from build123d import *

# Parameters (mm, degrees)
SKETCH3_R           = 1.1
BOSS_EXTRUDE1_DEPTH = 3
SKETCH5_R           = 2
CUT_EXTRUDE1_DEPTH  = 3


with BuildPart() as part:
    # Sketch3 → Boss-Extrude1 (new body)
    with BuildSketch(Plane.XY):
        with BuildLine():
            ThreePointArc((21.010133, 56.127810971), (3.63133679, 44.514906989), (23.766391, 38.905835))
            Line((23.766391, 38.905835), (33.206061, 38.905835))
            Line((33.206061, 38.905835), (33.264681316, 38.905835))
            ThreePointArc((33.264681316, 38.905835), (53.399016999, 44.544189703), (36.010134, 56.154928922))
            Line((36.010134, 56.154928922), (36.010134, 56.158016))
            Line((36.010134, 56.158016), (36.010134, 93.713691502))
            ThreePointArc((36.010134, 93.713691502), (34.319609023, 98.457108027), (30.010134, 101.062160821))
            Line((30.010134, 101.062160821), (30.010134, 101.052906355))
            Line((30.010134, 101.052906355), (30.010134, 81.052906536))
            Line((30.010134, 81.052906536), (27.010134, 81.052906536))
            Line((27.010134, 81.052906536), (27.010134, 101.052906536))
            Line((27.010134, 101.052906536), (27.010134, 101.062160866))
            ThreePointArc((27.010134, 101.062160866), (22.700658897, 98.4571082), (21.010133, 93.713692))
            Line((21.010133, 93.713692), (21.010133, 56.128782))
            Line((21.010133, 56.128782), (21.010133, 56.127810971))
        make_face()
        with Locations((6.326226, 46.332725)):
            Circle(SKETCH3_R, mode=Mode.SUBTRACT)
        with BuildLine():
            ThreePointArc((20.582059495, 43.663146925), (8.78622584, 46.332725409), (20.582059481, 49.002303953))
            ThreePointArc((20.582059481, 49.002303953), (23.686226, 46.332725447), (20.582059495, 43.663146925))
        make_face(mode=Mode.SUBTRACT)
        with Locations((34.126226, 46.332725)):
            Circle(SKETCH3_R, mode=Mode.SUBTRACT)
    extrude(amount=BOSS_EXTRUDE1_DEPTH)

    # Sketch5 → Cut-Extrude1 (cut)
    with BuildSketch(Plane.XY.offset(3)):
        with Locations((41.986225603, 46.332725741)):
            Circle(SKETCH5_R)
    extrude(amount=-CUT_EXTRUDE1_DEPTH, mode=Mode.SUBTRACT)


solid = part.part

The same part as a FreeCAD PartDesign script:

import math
import FreeCAD as App
import Part
import Sketcher
Q = App.Units.Quantity

doc = App.newDocument("Part")
body = doc.addObject("PartDesign::Body", "Body")

sketch1 = body.newObject("Sketcher::SketchObject", "Sketch")
sketch1.AttachmentSupport = (doc.getObject("XY_Plane"), [""])
sketch1.MapMode = "FlatFace"
sketch1.addGeometry([
    Part.ArcOfCircle(Part.Circle(App.Vector(15, 46.3, 0), App.Vector(0, 0, 1), 11.5), math.radians(58), math.radians(320)),
    Part.LineSegment(App.Vector(23.8, 38.9, 0), App.Vector(33.3, 38.9, 0)),
    Part.ArcOfCircle(Part.Circle(App.Vector(42, 46.4, 0), App.Vector(0, 0, 1), 11.5), math.radians(-140), math.radians(122)),
    Part.LineSegment(App.Vector(36, 56.2, 0), App.Vector(36, 93.7, 0)),
    Part.ArcOfCircle(Part.Circle(App.Vector(28.5, 93.7, 0), App.Vector(0, 0, 1), 7.5), math.radians(0), math.radians(78)),
    Part.LineSegment(App.Vector(30, 101.1, 0), App.Vector(30, 81.1, 0)),
    Part.LineSegment(App.Vector(30, 81.1, 0), App.Vector(27, 81.1, 0)),
    Part.LineSegment(App.Vector(27, 81.1, 0), App.Vector(27, 101.1, 0)),
    Part.ArcOfCircle(Part.Circle(App.Vector(28.5, 93.7, 0), App.Vector(0, 0, 1), 7.5), math.radians(102), math.radians(180)),
    Part.LineSegment(App.Vector(21, 93.7, 0), App.Vector(21, 56.1, 0)),
    Part.Circle(App.Vector(6.3, 46.3, 0), App.Vector(0, 0, 1), 1.1),
    Part.Circle(App.Vector(34.1, 46.3, 0), App.Vector(0, 0, 1), 1.1),
    Part.ArcOfCircle(Part.Circle(App.Vector(21, 46.3, 0), App.Vector(0, 0, 1), 2.7), math.radians(-99), math.radians(99)),
    Part.ArcOfCircle(Part.Circle(App.Vector(15, 46.3, 0), App.Vector(0, 0, 1), 6.2), math.radians(26), math.radians(334)),
], False)
sketch1.addConstraint([
    Sketcher.Constraint("Coincident", 0, 2, 1, 1),
    Sketcher.Constraint("Coincident", 1, 2, 2, 1),
    Sketcher.Constraint("Coincident", 2, 2, 3, 1),
    Sketcher.Constraint("Tangent", 3, 2, 4, 1),
    Sketcher.Constraint("Coincident", 4, 2, 5, 1),
    Sketcher.Constraint("Coincident", 5, 2, 6, 1),
    Sketcher.Constraint("Coincident", 6, 2, 7, 1),
    Sketcher.Constraint("Coincident", 7, 2, 8, 1),
    Sketcher.Constraint("Tangent", 8, 2, 9, 1),
    Sketcher.Constraint("Coincident", 9, 2, 0, 1),
    Sketcher.Constraint("Coincident", 12, 1, 13, 2),
    Sketcher.Constraint("Coincident", 13, 1, 12, 2),
    Sketcher.Constraint("Horizontal", 1),
    Sketcher.Constraint("Vertical", 3),
    Sketcher.Constraint("Vertical", 5),
    Sketcher.Constraint("Horizontal", 6),
    Sketcher.Constraint("Vertical", 7),
    Sketcher.Constraint("Vertical", 9),
    Sketcher.Constraint("Coincident", 8, 3, 4, 3),
    Sketcher.Constraint("Equal", 4, 8),
    Sketcher.Constraint("Equal", 10, 11),
    Sketcher.Constraint("Horizontal", 10, 3, 11, 3),
    Sketcher.Constraint("Horizontal", 11, 3, 12, 3),
    Sketcher.Constraint("Horizontal", 12, 3, 13, 3),
    Sketcher.Constraint("Horizontal", 4, 2, 7, 2),
    Sketcher.Constraint("Diameter", 10, Q("2.2 mm")),
    Sketcher.Constraint("Radius", 4, Q("7.5 mm")),
    Sketcher.Constraint("Radius", 12, Q("2.7 mm")),
    Sketcher.Constraint("Radius", 13, Q("6.2 mm")),
    Sketcher.Constraint("DistanceX", 6, 2, 6, 1, Q("3 mm")),
    Sketcher.Constraint("DistanceX", 13, 3, 12, 3, Q("6 mm")),
    Sketcher.Constraint("DistanceX", 10, 3, 11, 3, Q("27.8 mm")),
    Sketcher.Constraint("DistanceX", 12, 3, 11, 3, Q("13.14 mm")),
    Sketcher.Constraint("Radius", 0, Q("11.499546 mm")),
    Sketcher.Constraint("Radius", 2, Q("11.506153 mm")),
    Sketcher.Constraint("DistanceX", 1, 1, 1, 2, Q("9.49829 mm")),
    Sketcher.Constraint("DistanceY", 9, 2, 9, 1, Q("37.585881 mm")),
    Sketcher.Constraint("DistanceX", -1, 1, 2, 3, Q("42.035898 mm")),
    Sketcher.Constraint("DistanceY", -1, 1, 2, 3, Q("46.352801 mm")),
    Sketcher.Constraint("DistanceY", 0, 3, 2, 3, Q("0.020598 mm")),
    Sketcher.Constraint("DistanceY", 0, 3, 13, 1, Q("2.670101 mm")),
    Sketcher.Constraint("DistanceY", 3, 1, 3, 2, Q("37.558763 mm")),
    Sketcher.Constraint("DistanceY", 5, 2, 5, 1, Q("20.009254 mm")),
    Sketcher.Constraint("DistanceX", -1, 1, 0, 3, Q("14.986379 mm")),
    Sketcher.Constraint("DistanceX", -1, 1, 12, 1, Q("20.582059 mm")),
])
pad1 = body.newObject("PartDesign::Pad", "Pad")
pad1.Profile = sketch1
pad1.Length = 3

sketch2 = body.newObject("Sketcher::SketchObject", "Sketch001")
sketch2.AttachmentSupport = (doc.getObject("XY_Plane"), [""])
sketch2.MapMode = "FlatFace"
sketch2.AttachmentOffset = App.Placement(App.Vector(0, 0, 3), App.Rotation())
sketch2.addGeometry(Part.Circle(App.Vector(42, 46.3, 0), App.Vector(0, 0, 1), 2), False)
sketch2.addConstraint([
    Sketcher.Constraint("Diameter", 0, Q("4 mm")),
    Sketcher.Constraint("DistanceX", -1, 1, 0, 3, Q("41.986226 mm")),
    Sketcher.Constraint("DistanceY", -1, 1, 0, 3, Q("46.332726 mm")),
])
pocket1 = body.newObject("PartDesign::Pocket", "Pocket")
pocket1.Profile = sketch2
pocket1.Length = 3

doc.recompute()
